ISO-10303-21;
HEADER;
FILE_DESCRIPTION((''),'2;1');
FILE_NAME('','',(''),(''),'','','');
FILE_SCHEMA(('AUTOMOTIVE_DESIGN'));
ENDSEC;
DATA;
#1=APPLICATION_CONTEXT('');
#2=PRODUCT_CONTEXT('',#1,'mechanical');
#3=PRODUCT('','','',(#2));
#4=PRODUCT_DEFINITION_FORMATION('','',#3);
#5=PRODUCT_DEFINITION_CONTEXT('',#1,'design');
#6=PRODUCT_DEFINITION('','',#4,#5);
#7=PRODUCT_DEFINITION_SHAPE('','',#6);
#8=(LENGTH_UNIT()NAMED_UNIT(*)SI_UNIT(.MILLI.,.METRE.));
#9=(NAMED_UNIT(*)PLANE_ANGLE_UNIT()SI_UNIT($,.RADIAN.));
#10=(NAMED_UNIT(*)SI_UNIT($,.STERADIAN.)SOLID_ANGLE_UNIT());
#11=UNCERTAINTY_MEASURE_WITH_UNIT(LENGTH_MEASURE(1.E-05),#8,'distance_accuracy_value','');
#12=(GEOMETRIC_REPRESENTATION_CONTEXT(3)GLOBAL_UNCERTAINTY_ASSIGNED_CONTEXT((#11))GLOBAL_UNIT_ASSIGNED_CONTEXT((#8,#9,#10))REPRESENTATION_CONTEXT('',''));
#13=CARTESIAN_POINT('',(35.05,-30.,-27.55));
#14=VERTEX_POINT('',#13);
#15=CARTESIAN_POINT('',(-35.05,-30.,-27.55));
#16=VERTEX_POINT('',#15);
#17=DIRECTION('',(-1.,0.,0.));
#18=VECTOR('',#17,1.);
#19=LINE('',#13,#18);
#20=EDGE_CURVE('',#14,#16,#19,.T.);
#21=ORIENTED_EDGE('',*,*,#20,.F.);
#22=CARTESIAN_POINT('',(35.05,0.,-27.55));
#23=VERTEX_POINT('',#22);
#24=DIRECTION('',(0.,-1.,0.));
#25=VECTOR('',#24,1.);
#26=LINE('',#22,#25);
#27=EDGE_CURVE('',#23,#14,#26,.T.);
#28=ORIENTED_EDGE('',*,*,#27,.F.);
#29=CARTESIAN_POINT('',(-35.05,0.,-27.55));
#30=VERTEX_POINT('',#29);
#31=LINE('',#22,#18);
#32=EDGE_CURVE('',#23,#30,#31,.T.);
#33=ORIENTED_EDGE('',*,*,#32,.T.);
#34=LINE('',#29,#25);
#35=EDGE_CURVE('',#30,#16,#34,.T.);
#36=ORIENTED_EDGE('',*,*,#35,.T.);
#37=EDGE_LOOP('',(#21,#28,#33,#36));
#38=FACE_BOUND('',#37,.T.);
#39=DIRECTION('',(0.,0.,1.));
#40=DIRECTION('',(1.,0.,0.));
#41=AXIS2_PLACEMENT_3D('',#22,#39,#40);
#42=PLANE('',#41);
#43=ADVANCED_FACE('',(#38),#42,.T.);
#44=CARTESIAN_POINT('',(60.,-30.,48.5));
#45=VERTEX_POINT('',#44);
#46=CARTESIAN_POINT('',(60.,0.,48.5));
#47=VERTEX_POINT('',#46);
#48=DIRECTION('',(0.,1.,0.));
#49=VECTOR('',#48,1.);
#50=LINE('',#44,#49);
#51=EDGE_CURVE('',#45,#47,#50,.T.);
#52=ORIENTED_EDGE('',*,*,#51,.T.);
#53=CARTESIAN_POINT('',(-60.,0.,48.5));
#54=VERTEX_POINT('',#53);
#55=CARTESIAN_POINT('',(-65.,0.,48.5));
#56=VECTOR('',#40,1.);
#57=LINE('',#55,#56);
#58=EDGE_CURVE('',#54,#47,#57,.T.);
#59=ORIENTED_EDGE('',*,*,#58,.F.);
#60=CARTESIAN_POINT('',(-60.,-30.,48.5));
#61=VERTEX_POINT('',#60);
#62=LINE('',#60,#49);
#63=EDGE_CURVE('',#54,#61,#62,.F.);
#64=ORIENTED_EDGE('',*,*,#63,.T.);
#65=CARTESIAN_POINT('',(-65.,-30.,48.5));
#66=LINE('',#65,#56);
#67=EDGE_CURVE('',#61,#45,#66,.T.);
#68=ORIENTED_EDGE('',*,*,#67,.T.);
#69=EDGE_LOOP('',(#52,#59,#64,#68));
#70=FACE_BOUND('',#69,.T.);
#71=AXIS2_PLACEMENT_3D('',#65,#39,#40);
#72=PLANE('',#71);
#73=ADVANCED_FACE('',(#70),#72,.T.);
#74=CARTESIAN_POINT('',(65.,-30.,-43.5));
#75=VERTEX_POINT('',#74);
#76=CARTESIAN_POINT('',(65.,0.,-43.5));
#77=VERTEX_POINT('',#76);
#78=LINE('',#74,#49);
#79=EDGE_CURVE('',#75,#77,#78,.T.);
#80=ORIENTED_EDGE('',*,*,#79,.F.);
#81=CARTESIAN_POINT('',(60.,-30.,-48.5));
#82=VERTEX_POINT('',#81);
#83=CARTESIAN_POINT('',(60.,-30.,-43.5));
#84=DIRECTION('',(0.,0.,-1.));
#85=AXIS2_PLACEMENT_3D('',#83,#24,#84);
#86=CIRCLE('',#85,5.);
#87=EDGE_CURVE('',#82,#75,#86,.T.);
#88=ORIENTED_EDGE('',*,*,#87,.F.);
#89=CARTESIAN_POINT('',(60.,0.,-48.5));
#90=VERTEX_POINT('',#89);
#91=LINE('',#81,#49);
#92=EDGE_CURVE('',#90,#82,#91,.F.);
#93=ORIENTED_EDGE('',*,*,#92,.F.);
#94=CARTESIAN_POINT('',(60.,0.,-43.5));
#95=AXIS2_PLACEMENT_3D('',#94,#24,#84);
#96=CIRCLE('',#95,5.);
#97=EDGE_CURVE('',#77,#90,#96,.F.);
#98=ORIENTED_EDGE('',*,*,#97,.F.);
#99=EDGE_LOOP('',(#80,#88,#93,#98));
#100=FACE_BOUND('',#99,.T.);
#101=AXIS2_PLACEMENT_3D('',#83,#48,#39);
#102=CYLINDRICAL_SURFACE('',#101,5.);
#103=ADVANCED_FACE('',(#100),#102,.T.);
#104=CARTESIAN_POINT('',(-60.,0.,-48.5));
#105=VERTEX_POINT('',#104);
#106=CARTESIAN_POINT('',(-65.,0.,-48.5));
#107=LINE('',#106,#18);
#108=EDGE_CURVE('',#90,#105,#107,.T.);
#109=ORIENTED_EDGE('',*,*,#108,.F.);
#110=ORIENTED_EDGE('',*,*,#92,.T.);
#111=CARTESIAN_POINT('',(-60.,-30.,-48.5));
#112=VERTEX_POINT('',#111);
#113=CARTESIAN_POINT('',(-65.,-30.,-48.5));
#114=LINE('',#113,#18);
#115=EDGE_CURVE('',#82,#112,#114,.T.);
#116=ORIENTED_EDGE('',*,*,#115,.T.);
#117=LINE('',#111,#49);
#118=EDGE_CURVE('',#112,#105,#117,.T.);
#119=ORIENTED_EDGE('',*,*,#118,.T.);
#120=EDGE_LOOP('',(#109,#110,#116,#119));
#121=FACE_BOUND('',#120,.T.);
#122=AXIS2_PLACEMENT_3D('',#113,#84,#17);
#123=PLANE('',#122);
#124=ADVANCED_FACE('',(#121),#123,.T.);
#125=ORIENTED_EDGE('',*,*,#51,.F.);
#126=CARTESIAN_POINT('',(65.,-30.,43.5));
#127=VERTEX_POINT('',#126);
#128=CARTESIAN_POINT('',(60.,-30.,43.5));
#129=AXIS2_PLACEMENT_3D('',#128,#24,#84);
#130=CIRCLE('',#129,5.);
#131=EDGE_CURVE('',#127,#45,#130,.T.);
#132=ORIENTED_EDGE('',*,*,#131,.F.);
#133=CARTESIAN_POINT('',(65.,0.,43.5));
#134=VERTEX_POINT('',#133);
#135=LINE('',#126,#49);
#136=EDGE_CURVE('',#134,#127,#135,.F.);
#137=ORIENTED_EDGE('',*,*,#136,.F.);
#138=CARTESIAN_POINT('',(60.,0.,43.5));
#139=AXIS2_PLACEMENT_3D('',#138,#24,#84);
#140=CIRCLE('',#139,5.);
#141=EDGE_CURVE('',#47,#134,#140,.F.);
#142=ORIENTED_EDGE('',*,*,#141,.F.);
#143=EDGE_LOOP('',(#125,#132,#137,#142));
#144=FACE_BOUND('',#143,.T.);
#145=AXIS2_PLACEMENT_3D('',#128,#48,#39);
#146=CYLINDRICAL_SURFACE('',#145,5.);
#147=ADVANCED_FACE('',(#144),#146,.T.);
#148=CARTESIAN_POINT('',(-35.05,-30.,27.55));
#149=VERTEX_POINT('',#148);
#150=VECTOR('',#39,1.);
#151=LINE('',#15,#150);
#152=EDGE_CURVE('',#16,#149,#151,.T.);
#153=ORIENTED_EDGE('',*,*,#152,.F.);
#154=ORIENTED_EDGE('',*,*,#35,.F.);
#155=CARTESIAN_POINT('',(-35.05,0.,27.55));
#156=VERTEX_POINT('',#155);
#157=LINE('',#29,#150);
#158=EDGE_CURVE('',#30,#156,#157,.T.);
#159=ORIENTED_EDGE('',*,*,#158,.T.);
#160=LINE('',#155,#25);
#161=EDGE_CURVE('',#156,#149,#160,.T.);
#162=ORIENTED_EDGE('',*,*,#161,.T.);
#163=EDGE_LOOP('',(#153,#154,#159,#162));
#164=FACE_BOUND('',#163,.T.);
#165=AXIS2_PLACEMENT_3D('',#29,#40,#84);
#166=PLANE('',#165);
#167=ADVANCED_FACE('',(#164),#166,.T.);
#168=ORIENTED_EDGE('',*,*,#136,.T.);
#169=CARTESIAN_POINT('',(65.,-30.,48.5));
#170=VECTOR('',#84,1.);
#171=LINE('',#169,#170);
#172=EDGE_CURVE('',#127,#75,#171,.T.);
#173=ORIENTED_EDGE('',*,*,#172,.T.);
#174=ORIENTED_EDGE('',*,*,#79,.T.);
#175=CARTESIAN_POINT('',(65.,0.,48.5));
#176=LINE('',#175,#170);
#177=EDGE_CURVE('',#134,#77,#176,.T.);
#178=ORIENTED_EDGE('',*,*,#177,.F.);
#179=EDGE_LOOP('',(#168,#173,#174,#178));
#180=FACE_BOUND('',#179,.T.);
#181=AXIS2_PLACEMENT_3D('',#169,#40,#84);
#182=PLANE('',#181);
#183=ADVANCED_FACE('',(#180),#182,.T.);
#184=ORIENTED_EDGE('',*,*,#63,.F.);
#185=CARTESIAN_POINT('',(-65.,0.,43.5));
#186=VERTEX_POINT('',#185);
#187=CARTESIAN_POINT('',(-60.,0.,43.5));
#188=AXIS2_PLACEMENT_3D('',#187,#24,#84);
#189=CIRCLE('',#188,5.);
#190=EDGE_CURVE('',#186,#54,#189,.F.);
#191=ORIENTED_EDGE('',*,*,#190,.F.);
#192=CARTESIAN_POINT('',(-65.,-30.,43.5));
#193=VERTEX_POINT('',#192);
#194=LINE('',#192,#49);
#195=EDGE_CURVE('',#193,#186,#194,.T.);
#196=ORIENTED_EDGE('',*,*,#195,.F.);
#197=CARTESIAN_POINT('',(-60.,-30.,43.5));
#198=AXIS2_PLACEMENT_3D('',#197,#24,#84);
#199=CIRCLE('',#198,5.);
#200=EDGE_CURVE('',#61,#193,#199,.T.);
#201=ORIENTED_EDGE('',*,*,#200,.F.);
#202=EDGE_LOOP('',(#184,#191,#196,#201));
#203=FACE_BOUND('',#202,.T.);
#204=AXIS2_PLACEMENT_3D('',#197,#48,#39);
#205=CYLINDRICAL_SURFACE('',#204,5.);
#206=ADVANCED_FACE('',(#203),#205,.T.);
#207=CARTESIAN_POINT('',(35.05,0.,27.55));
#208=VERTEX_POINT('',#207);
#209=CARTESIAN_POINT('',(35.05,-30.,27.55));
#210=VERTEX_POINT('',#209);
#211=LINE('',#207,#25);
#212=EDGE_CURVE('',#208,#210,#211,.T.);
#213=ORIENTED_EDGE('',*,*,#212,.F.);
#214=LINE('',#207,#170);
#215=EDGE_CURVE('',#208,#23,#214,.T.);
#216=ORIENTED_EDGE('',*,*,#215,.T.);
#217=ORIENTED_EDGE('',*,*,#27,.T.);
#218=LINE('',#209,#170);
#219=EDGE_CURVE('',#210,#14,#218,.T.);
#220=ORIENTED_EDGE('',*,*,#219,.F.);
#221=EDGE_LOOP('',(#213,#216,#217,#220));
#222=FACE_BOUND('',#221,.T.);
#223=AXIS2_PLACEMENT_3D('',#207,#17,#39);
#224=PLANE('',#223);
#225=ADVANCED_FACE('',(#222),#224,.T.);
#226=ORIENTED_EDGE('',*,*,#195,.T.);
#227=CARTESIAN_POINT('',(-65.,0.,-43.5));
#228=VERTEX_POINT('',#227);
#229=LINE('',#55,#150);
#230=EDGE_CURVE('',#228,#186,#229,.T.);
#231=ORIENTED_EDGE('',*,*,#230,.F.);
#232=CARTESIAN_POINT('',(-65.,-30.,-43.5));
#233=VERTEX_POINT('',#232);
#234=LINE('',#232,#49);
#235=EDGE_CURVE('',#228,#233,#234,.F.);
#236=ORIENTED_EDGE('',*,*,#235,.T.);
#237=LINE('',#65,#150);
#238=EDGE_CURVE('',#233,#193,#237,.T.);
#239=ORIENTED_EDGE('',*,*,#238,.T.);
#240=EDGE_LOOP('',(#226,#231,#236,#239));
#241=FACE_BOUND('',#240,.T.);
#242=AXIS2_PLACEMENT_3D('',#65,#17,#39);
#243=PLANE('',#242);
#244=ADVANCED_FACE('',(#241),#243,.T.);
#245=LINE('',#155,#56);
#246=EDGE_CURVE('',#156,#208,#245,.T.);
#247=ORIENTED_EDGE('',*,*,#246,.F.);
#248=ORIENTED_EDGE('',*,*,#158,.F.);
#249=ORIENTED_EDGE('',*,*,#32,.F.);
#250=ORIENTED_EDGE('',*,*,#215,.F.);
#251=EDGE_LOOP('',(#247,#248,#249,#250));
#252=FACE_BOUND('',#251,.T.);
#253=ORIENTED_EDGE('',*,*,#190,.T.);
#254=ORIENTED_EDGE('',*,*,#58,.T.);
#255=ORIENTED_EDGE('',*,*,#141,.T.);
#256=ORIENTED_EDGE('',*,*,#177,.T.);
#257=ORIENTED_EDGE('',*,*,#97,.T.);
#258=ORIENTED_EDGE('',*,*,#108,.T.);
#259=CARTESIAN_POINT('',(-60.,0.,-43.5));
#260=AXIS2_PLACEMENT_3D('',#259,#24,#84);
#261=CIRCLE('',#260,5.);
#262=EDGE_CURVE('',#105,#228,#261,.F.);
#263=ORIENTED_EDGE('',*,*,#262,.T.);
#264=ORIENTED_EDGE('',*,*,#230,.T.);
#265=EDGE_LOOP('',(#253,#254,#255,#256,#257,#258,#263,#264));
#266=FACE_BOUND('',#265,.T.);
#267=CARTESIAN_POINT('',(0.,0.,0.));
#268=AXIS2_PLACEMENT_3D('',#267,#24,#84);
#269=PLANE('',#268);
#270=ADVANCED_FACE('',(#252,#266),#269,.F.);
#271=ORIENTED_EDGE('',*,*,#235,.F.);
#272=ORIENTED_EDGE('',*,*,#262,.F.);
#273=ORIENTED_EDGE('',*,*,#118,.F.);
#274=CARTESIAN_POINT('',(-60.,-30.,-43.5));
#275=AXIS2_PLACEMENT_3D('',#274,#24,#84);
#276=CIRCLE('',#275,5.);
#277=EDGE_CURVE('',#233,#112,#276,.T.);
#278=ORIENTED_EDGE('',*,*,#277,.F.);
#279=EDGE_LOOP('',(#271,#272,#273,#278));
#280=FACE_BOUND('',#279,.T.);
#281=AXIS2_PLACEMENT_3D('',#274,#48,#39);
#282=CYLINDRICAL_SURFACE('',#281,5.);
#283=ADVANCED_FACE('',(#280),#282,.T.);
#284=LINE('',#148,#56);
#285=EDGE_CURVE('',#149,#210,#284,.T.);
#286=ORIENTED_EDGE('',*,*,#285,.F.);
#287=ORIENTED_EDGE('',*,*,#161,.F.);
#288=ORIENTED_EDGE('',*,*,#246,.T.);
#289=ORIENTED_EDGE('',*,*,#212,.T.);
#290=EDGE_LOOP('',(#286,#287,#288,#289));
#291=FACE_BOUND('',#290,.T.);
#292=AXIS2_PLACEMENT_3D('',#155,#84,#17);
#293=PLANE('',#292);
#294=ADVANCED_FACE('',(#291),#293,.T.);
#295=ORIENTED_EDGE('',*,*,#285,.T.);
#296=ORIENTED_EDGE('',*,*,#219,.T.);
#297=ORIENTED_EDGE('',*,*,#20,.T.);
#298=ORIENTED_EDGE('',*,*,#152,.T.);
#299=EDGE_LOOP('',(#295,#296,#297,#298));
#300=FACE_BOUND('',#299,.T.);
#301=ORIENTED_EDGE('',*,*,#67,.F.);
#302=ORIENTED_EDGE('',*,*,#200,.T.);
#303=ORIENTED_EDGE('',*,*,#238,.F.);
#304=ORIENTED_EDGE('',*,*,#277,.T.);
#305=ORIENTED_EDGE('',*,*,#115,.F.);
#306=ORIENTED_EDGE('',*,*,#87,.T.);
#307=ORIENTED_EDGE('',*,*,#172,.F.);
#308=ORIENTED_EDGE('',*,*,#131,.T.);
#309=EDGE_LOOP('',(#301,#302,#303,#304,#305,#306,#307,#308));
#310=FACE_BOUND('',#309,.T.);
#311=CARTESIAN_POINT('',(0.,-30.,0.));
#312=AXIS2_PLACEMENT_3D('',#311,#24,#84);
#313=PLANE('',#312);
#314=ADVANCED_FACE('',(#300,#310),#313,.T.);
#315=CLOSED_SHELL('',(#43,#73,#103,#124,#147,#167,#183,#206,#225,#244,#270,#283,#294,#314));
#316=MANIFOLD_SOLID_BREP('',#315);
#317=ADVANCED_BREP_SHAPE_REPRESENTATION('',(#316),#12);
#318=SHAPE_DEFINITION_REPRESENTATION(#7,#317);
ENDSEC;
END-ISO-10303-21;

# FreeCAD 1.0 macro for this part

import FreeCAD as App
import Part
import Sketcher

V = App.Vector


def edges_at(feature, points):
    """Names of the edges that pass closest to the given points."""
    edges = feature.Shape.Edges
    near = lambda p: min(range(len(edges)), key=lambda i: edges[i].distToShape(Part.Vertex(*p))[0])
    return sorted({f"Edge{near(p) + 1}" for p in points})

doc = App.newDocument("Part")
body = doc.addObject("PartDesign::Body", "Body")

sketch1 = body.newObject("Sketcher::SketchObject", "Sketch")
sketch1.AttachmentSupport = (doc.getObject("XZ_Plane"), [""])
sketch1.MapMode = "FlatFace"
sketch1.addGeometry(Part.LineSegment(V(-65, -48, 0), V(-65, 48, 0)), False)
sketch1.addGeometry(Part.LineSegment(V(-65, 48, 0), V(65, 48, 0)), False)
sketch1.addGeometry(Part.LineSegment(V(65, 48, 0), V(65, -48, 0)), False)
sketch1.addGeometry(Part.LineSegment(V(65, -48, 0), V(-65, -48, 0)), False)
sketch1.addConstraint(Sketcher.Constraint("Coincident", 0, 2, 1, 1))
sketch1.addConstraint(Sketcher.Constraint("Coincident", 1, 2, 2, 1))
sketch1.addConstraint(Sketcher.Constraint("Coincident", 2, 2, 3, 1))
sketch1.addConstraint(Sketcher.Constraint("Coincident", 3, 2, 0, 1))
sketch1.addConstraint(Sketcher.Constraint("Vertical", 0))
sketch1.addConstraint(Sketcher.Constraint("Horizontal", 1))
sketch1.addConstraint(Sketcher.Constraint("Vertical", 2))
sketch1.addConstraint(Sketcher.Constraint("Horizontal", 3))
sketch1.addConstraint(Sketcher.Constraint("Symmetric", 0, 2, 2, 2, -1, 1))
sketch1.addConstraint(Sketcher.Constraint("DistanceX", 1, 1, 1, 2, 130.0))
sketch1.addConstraint(Sketcher.Constraint("DistanceY", 0, 1, 0, 2, 97.0))
pad1 = body.newObject("PartDesign::Pad", "Pad")
pad1.Profile = sketch1
pad1.Length = 30
doc.recompute()

fillet = body.newObject("PartDesign::Fillet", "Fillet")
fillet.Base = (pad1, edges_at(pad1, [
    (65, -15, 48.5),
    (-65, -15, 48.5),
    (-65, -15, -48.5),
    (65, -15, -48.5),
]))
fillet.Radius = 5

sketch2 = body.newObject("Sketcher::SketchObject", "Sketch001")
sketch2.AttachmentSupport = (doc.getObject("XZ_Plane"), [""])
sketch2.MapMode = "FlatFace"
sketch2.AttachmentOffset = App.Placement(V(0, 0, 30), App.Rotation())
sketch2.addGeometry(Part.LineSegment(V(-35, -28, 0), V(-35, 28, 0)), False)
sketch2.addGeometry(Part.LineSegment(V(-35, 28, 0), V(35, 28, 0)), False)
sketch2.addGeometry(Part.LineSegment(V(35, 28, 0), V(35, -28, 0)), False)
sketch2.addGeometry(Part.LineSegment(V(35, -28, 0), V(-35, -28, 0)), False)
sketch2.addConstraint(Sketcher.Constraint("Coincident", 0, 2, 1, 1))
sketch2.addConstraint(Sketcher.Constraint("Coincident", 1, 2, 2, 1))
sketch2.addConstraint(Sketcher.Constraint("Coincident", 2, 2, 3, 1))
sketch2.addConstraint(Sketcher.Constraint("Coincident", 3, 2, 0, 1))
sketch2.addConstraint(Sketcher.Constraint("Vertical", 0))
sketch2.addConstraint(Sketcher.Constraint("Horizontal", 1))
sketch2.addConstraint(Sketcher.Constraint("Vertical", 2))
sketch2.addConstraint(Sketcher.Constraint("Horizontal", 3))
sketch2.addConstraint(Sketcher.Constraint("Symmetric", 0, 2, 2, 2, -1, 1))
sketch2.addConstraint(Sketcher.Constraint("DistanceX", 1, 1, 1, 2, 70.1))
sketch2.addConstraint(Sketcher.Constraint("DistanceY", 0, 1, 0, 2, 55.1))
pocket1 = body.newObject("PartDesign::Pocket", "Pocket")
pocket1.Profile = sketch2
pocket1.Type = "ThroughAll"

doc.recompute()
